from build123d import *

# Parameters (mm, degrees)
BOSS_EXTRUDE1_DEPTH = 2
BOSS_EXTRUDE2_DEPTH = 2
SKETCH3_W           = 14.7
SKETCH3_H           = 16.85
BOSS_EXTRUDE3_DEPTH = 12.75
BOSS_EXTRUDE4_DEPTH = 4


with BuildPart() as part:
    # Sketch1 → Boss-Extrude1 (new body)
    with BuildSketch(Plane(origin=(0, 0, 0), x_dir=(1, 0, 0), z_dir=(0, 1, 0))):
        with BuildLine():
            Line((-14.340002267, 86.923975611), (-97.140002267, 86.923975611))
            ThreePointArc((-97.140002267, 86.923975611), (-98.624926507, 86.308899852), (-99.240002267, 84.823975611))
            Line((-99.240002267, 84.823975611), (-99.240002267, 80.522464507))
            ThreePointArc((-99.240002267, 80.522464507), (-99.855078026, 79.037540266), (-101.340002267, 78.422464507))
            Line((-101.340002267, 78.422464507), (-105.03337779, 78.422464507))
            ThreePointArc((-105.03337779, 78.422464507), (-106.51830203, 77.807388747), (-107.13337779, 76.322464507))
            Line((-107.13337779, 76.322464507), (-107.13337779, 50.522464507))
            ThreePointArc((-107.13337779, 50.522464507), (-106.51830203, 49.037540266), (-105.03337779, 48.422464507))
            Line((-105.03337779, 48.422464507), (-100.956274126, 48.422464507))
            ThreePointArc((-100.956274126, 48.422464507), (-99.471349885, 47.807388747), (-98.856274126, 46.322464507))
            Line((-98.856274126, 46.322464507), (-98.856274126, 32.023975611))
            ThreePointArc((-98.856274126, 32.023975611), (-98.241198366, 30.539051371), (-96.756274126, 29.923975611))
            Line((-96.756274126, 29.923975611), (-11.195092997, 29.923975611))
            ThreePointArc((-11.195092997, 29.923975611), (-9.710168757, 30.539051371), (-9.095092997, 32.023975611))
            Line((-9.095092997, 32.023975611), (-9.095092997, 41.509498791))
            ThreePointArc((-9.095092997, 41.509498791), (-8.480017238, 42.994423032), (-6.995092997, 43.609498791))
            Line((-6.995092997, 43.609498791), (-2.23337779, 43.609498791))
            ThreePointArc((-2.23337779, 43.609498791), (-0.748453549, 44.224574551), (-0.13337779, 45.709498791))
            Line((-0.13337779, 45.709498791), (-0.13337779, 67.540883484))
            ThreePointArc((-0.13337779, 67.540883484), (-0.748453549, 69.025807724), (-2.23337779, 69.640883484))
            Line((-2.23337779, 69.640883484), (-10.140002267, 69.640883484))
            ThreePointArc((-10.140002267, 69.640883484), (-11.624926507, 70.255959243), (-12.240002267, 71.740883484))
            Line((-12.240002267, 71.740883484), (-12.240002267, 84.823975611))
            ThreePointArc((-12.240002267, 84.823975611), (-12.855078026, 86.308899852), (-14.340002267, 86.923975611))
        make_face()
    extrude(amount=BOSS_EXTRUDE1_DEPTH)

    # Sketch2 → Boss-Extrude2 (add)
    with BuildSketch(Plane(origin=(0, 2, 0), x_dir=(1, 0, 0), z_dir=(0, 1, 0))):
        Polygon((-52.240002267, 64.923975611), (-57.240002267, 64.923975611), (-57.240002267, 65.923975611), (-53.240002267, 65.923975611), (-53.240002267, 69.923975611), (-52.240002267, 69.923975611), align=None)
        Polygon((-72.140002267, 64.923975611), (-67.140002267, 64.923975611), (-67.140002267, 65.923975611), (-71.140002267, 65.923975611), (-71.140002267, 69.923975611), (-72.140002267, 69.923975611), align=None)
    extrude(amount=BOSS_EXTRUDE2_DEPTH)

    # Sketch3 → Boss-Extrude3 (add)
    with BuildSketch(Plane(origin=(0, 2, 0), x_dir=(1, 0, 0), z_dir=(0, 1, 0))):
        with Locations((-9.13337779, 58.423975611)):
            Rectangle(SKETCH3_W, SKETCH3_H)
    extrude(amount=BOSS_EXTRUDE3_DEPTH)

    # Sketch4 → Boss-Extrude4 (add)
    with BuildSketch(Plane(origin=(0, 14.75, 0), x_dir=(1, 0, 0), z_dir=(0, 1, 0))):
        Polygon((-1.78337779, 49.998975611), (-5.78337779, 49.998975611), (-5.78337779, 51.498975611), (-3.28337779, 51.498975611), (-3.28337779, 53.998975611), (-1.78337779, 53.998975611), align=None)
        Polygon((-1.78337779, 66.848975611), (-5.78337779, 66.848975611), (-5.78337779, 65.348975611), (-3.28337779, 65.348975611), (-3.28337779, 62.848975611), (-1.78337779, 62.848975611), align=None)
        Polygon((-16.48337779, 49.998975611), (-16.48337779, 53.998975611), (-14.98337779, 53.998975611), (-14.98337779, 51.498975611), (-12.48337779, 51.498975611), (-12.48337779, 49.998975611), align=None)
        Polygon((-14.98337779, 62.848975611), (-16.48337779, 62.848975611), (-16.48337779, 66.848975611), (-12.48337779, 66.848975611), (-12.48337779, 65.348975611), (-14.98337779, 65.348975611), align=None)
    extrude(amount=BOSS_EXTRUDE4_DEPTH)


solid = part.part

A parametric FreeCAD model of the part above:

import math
import FreeCAD as App
import Part
import Sketcher
from FreeCAD import Vector
Q = App.Units.Quantity


def add_polygon(sketch, points):
    """Adds a closed chain of lines whose ends are joined by coincident constraints."""
    first, n = sketch.GeometryCount, len(points)
    for a, b in zip(points, points[1:] + points[:1]):
        sketch.addGeometry(Part.LineSegment(App.Vector(*a, 0), App.Vector(*b, 0)), False)
    for i in range(n):
        sketch.addConstraint(Sketcher.Constraint("Coincident", first + i, 2, first + (i + 1) % n, 1))

doc = App.newDocument("Part")
body = doc.addObject("PartDesign::Body", "Body")

# Sketch on XZ plane
sketch1 = body.newObject("Sketcher::SketchObject", "Sketch")
sketch1.AttachmentSupport = (doc.getObject("XZ_Plane"), [""])
sketch1.MapMode = "FlatFace"
sketch1.addGeometry([
    Part.LineSegment(Vector(-14.340002, -86.923976, 0), Vector(-97.140002, -86.923976, 0)),  # 0
    Part.ArcOfCircle(Part.Circle(Vector(-97.140002, -84.823976, 0), Vector(0, 0, 1), 2.1), math.radians(180), math.radians(270)),  # 1
    Part.LineSegment(Vector(-99.240002, -84.823976, 0), Vector(-99.240002, -80.522465, 0)),  # 2
    Part.ArcOfCircle(Part.Circle(Vector(-101.340002, -80.522465, 0), Vector(0, 0, 1), 2.1), math.radians(0), math.radians(90)),  # 3
    Part.LineSegment(Vector(-101.340002, -78.422465, 0), Vector(-105.033378, -78.422465, 0)),  # 4
    Part.ArcOfCircle(Part.Circle(Vector(-105.033378, -76.322465, 0), Vector(0, 0, 1), 2.1), math.radians(-180), math.radians(-90)),  # 5
    Part.LineSegment(Vector(-107.133378, -76.322465, 0), Vector(-107.133378, -50.522465, 0)),  # 6
    Part.ArcOfCircle(Part.Circle(Vector(-105.033378, -50.522465, 0), Vector(0, 0, 1), 2.1), math.radians(90), math.radians(180)),  # 7
    Part.LineSegment(Vector(-105.033378, -48.422465, 0), Vector(-100.956274, -48.422465, 0)),  # 8
    Part.ArcOfCircle(Part.Circle(Vector(-100.956274, -46.322465, 0), Vector(0, 0, 1), 2.1), math.radians(-90), math.radians(0)),  # 9
    Part.LineSegment(Vector(-98.856274, -46.322465, 0), Vector(-98.856274, -32.023976, 0)),  # 10
    Part.ArcOfCircle(Part.Circle(Vector(-96.756274, -32.023976, 0), Vector(0, 0, 1), 2.1), math.radians(90), math.radians(180)),  # 11
    Part.LineSegment(Vector(-96.756274, -29.923976, 0), Vector(-11.195093, -29.923976, 0)),  # 12
    Part.ArcOfCircle(Part.Circle(Vector(-11.195093, -32.023976, 0), Vector(0, 0, 1), 2.1), math.radians(0), math.radians(90)),  # 13
    Part.LineSegment(Vector(-9.095093, -32.023976, 0), Vector(-9.095093, -41.509499, 0)),  # 14
    Part.ArcOfCircle(Part.Circle(Vector(-6.995093, -41.509499, 0), Vector(0, 0, 1), 2.1), math.radians(180), math.radians(270)),  # 15
    Part.LineSegment(Vector(-6.995093, -43.609499, 0), Vector(-2.233378, -43.609499, 0)),  # 16
    Part.ArcOfCircle(Part.Circle(Vector(-2.233378, -45.709499, 0), Vector(0, 0, 1), 2.1), math.radians(0), math.radians(90)),  # 17
    Part.LineSegment(Vector(-0.133378, -45.709499, 0), Vector(-0.133378, -67.540883, 0)),  # 18
    Part.ArcOfCircle(Part.Circle(Vector(-2.233378, -67.540883, 0), Vector(0, 0, 1), 2.1), math.radians(-90), math.radians(0)),  # 19
    Part.LineSegment(Vector(-2.233378, -69.640883, 0), Vector(-10.140002, -69.640883, 0)),  # 20
    Part.ArcOfCircle(Part.Circle(Vector(-10.140002, -71.740883, 0), Vector(0, 0, 1), 2.1), math.radians(90), math.radians(180)),  # 21
    Part.LineSegment(Vector(-12.240002, -71.740883, 0), Vector(-12.240002, -84.823976, 0)),  # 22
    Part.ArcOfCircle(Part.Circle(Vector(-14.340002, -84.823976, 0), Vector(0, 0, 1), 2.1), math.radians(-90), math.radians(0)),  # 23
], False)
sketch1.addConstraint([
    Sketcher.Constraint("Tangent", 0, 2, 1, 2),
    Sketcher.Constraint("Tangent", 1, 1, 2, 1),
    Sketcher.Constraint("Tangent", 2, 2, 3, 1),
    Sketcher.Constraint("Tangent", 3, 2, 4, 1),
    Sketcher.Constraint("Tangent", 4, 2, 5, 2),
    Sketcher.Constraint("Tangent", 5, 1, 6, 1),
    Sketcher.Constraint("Tangent", 6, 2, 7, 2),
    Sketcher.Constraint("Tangent", 7, 1, 8, 1),
    Sketcher.Constraint("Tangent", 8, 2, 9, 1),
    Sketcher.Constraint("Tangent", 9, 2, 10, 1),
    Sketcher.Constraint("Tangent", 10, 2, 11, 2),
    Sketcher.Constraint("Tangent", 11, 1, 12, 1),
    Sketcher.Constraint("Tangent", 12, 2, 13, 2),
    Sketcher.Constraint("Tangent", 13, 1, 14, 1),
    Sketcher.Constraint("Tangent", 14, 2, 15, 1),
    Sketcher.Constraint("Tangent", 15, 2, 16, 1),
    Sketcher.Constraint("Tangent", 16, 2, 17, 2),
    Sketcher.Constraint("Tangent", 17, 1, 18, 1),
    Sketcher.Constraint("Tangent", 18, 2, 19, 2),
    Sketcher.Constraint("Tangent", 19, 1, 20, 1),
    Sketcher.Constraint("Tangent", 20, 2, 21, 1),
    Sketcher.Constraint("Tangent", 21, 2, 22, 1),
    Sketcher.Constraint("Tangent", 22, 2, 23, 2),
    Sketcher.Constraint("Tangent", 23, 1, 0, 1),
    Sketcher.Constraint("Horizontal", 0),
    Sketcher.Constraint("Vertical", 2),
    Sketcher.Constraint("Horizontal", 4),
    Sketcher.Constraint("Vertical", 6),
    Sketcher.Constraint("Horizontal", 8),
    Sketcher.Constraint("Vertical", 10),
    Sketcher.Constraint("Horizontal", 12),
    Sketcher.Constraint("Vertical", 14),
    Sketcher.Constraint("Horizontal", 16),
    Sketcher.Constraint("Vertical", 18),
    Sketcher.Constraint("Horizontal", 20),
    Sketcher.Constraint("Vertical", 22),
    Sketcher.Constraint("Equal", 1, 3),
    Sketcher.Constraint("Equal", 3, 5),
    Sketcher.Constraint("Equal", 5, 7),
    Sketcher.Constraint("Equal", 7, 9),
    Sketcher.Constraint("Equal", 9, 11),
    Sketcher.Constraint("Equal", 11, 13),
    Sketcher.Constraint("Equal", 13, 15),
    Sketcher.Constraint("Equal", 15, 17),
    Sketcher.Constraint("Equal", 17, 19),
    Sketcher.Constraint("Equal", 19, 21),
    Sketcher.Constraint("Equal", 21, 23),
    Sketcher.Constraint("Radius", 1, Q("2.1 mm")),
    Sketcher.Constraint("DistanceX", 0, 2, 0, 1, Q("82.8 mm")),
    Sketcher.Constraint("DistanceY", 6, 1, 6, 2, Q("25.8 mm")),
    Sketcher.Constraint("DistanceY", 1, 3, 11, 3, Q("52.8 mm")),
    Sketcher.Constraint("DistanceX", 12, 1, 12, 2, Q("85.561181 mm")),
    Sketcher.Constraint("DistanceY", 2, 1, 2, 2, Q("4.301511 mm")),
    Sketcher.Constraint("DistanceY", 15, 3, -1, 1, Q("41.509499 mm")),
    Sketcher.Constraint("DistanceX", 4, 2, 4, 1, Q("3.693376 mm")),
    Sketcher.Constraint("DistanceX", 8, 1, 8, 2, Q("4.077104 mm")),
    Sketcher.Constraint("DistanceX", 16, 1, 16, 2, Q("4.761715 mm")),
    Sketcher.Constraint("DistanceY", 14, 2, 14, 1, Q("9.485523 mm")),
    Sketcher.Constraint("DistanceY", 18, 2, 18, 1, Q("21.831385 mm")),
    Sketcher.Constraint("DistanceX", 1, 3, -1, 1, Q("97.140002 mm")),
])
pad1 = body.newObject("PartDesign::Pad", "Pad")
pad1.Profile = sketch1
pad1.Length = 2
pad1.Reversed = True

# Sketch on XZ plane
sketch2 = body.newObject("Sketcher::SketchObject", "Sketch001")
sketch2.AttachmentSupport = (doc.getObject("XZ_Plane"), [""])
sketch2.MapMode = "FlatFace"
sketch2.AttachmentOffset = App.Placement(Vector(0, 0, -2), App.Rotation())
add_polygon(sketch2, [(-57.240002, -64.923976), (-52.240002, -64.923976), (-52.240002, -69.923976), (-53.240002, -69.923976), (-53.240002, -65.923976), (-57.240002, -65.923976)])  # lines 0-5
add_polygon(sketch2, [(-72.140002, -64.923976), (-67.140002, -64.923976), (-67.140002, -65.923976), (-71.140002, -65.923976), (-71.140002, -69.923976), (-72.140002, -69.923976)])  # lines 6-11
sketch2.addConstraint([
    Sketcher.Constraint("Horizontal", 0),
    Sketcher.Constraint("Vertical", 1),
    Sketcher.Constraint("Horizontal", 2),
    Sketcher.Constraint("Vertical", 3),
    Sketcher.Constraint("Horizontal", 4),
    Sketcher.Constraint("Vertical", 5),
    Sketcher.Constraint("Horizontal", 6),
    Sketcher.Constraint("Vertical", 7),
    Sketcher.Constraint("Horizontal", 8),
    Sketcher.Constraint("Vertical", 9),
    Sketcher.Constraint("Horizontal", 10),
    Sketcher.Constraint("Vertical", 11),
    Sketcher.Constraint("Horizontal", 5, 2, 6, 2),
    Sketcher.Constraint("Horizontal", 4, 2, 7, 2),
    Sketcher.Constraint("Horizontal", 2, 2, 9, 2),
    Sketcher.Constraint("Equal", 0, 6),
    Sketcher.Constraint("Equal", 4, 8),
    Sketcher.Constraint("Equal", 6, 1),
    Sketcher.Constraint("Equal", 8, 3),
    Sketcher.Constraint("DistanceX", 0, 1, 0, 2, Q("5 mm")),
    Sketcher.Constraint("DistanceX", 2, 2, 2, 1, Q("1 mm")),
    Sketcher.Constraint("DistanceX", 6, 2, 5, 2, Q("9.9 mm")),
    Sketcher.Constraint("DistanceX", 0, 2, -1, 1, Q("52.240002 mm")),
    Sketcher.Constraint("DistanceY", 0, 2, -1, 1, Q("64.923976 mm")),
])
pad2 = body.newObject("PartDesign::Pad", "Pad001")
pad2.Profile = sketch2
pad2.Length = 2
pad2.Reversed = True

# Sketch on XZ plane
sketch3 = body.newObject("Sketcher::SketchObject", "Sketch002")
sketch3.AttachmentSupport = (doc.getObject("XZ_Plane"), [""])
sketch3.MapMode = "FlatFace"
sketch3.AttachmentOffset = App.Placement(Vector(0, 0, -2), App.Rotation())
add_polygon(sketch3, [(-16.483378, -66.848976), (-16.483378, -49.998976), (-1.783378, -49.998976), (-1.783378, -66.848976)])  # lines 0-3
sketch3.addConstraint([
    Sketcher.Constraint("Vertical", 0),
    Sketcher.Constraint("Horizontal", 1),
    Sketcher.Constraint("Vertical", 2),
    Sketcher.Constraint("Horizontal", 3),
    Sketcher.Constraint("DistanceX", 1, 1, 1, 2, Q("14.7 mm")),
    Sketcher.Constraint("DistanceY", 0, 1, 0, 2, Q("16.85 mm")),
    Sketcher.Constraint("DistanceX", 0, 2, -1, 1, Q("16.483378 mm")),
    Sketcher.Constraint("DistanceY", 0, 2, -1, 1, Q("49.998976 mm")),
])
pad3 = body.newObject("PartDesign::Pad", "Pad002")
pad3.Profile = sketch3
pad3.Length = 12.75
pad3.Reversed = True

# Sketch on XZ plane
sketch4 = body.newObject("Sketcher::SketchObject", "Sketch003")
sketch4.AttachmentSupport = (doc.getObject("XZ_Plane"), [""])
sketch4.MapMode = "FlatFace"
sketch4.AttachmentOffset = App.Placement(Vector(0, 0, -14.75), App.Rotation())
add_polygon(sketch4, [(-5.783378, -49.998976), (-1.783378, -49.998976), (-1.783378, -53.998976), (-3.283378, -53.998976), (-3.283378, -51.498976), (-5.783378, -51.498976)])  # lines 0-5
add_polygon(sketch4, [(-1.783378, -66.848976), (-5.783378, -66.848976), (-5.783378, -65.348976), (-3.283378, -65.348976), (-3.283378, -62.848976), (-1.783378, -62.848976)])  # lines 6-11
add_polygon(sketch4, [(-16.483378, -53.998976), (-16.483378, -49.998976), (-12.483378, -49.998976), (-12.483378, -51.498976), (-14.983378, -51.498976), (-14.983378, -53.998976)])  # lines 12-17
add_polygon(sketch4, [(-16.483378, -62.848976), (-14.983378, -62.848976), (-14.983378, -65.348976), (-12.483378, -65.348976), (-12.483378, -66.848976), (-16.483378, -66.848976)])  # lines 18-23
sketch4.addConstraint([
    Sketcher.Constraint("Horizontal", 0),
    Sketcher.Constraint("Vertical", 1),
    Sketcher.Constraint("Horizontal", 2),
    Sketcher.Constraint("Vertical", 3),
    Sketcher.Constraint("Horizontal", 4),
    Sketcher.Constraint("Vertical", 5),
    Sketcher.Constraint("Horizontal", 6),
    Sketcher.Constraint("Vertical", 7),
    Sketcher.Constraint("Horizontal", 8),
    Sketcher.Constraint("Vertical", 9),
    Sketcher.Constraint("Horizontal", 10),
    Sketcher.Constraint("Vertical", 11),
    Sketcher.Constraint("Vertical", 12),
    Sketcher.Constraint("Horizontal", 13),
    Sketcher.Constraint("Vertical", 14),
    Sketcher.Constraint("Horizontal", 15),
    Sketcher.Constraint("Vertical", 16),
    Sketcher.Constraint("Horizontal", 17),
    Sketcher.Constraint("Horizontal", 18),
    Sketcher.Constraint("Vertical", 19),
    Sketcher.Constraint("Horizontal", 20),
    Sketcher.Constraint("Vertical", 21),
    Sketcher.Constraint("Horizontal", 22),
    Sketcher.Constraint("Vertical", 23),
    Sketcher.Constraint("Horizontal", 5, 2, 12, 2),
    Sketcher.Constraint("Horizontal", 4, 2, 14, 2),
    Sketcher.Constraint("Horizontal", 2, 2, 16, 2),
    Sketcher.Constraint("Horizontal", 10, 2, 18, 2),
    Sketcher.Constraint("Horizontal", 8, 2, 19, 2),
    Sketcher.Constraint("Horizontal", 11, 2, 21, 2),
    Sketcher.Constraint("Vertical", 5, 2, 6, 2),
    Sketcher.Constraint("Vertical", 3, 2, 8, 2),
    Sketcher.Constraint("Vertical", 1, 2, 10, 2),
    Sketcher.Constraint("Vertical", 16, 2, 18, 2),
    Sketcher.Constraint("Vertical", 14, 2, 20, 2),
    Sketcher.Constraint("Vertical", 17, 2, 22, 2),
    Sketcher.Constraint("Equal", 6, 13),
    Sketcher.Constraint("Equal", 8, 15),
    Sketcher.Constraint("Equal", 22, 1),
    Sketcher.Constraint("Equal", 20, 3),
    Sketcher.Constraint("Equal", 5, 7),
    Sketcher.Constraint("Equal", 3, 9),
    Sketcher.Constraint("DistanceX", 0, 1, 0, 2, Q("4 mm")),
    Sketcher.Constraint("DistanceX", 2, 2, 2, 1, Q("1.5 mm")),
    Sketcher.Constraint("DistanceX", 12, 2, 5, 2, Q("10.7 mm")),
    Sketcher.Constraint("DistanceY", 6, 2, 2, 2, Q("12.85 mm")),
    Sketcher.Constraint("DistanceX", 0, 2, -1, 1, Q("1.783378 mm")),
    Sketcher.Constraint("DistanceY", 0, 2, -1, 1, Q("49.998976 mm")),
])
pad4 = body.newObject("PartDesign::Pad", "Pad003")
pad4.Profile = sketch4
pad4.Length = 4
pad4.Reversed = True

doc.recompute()
